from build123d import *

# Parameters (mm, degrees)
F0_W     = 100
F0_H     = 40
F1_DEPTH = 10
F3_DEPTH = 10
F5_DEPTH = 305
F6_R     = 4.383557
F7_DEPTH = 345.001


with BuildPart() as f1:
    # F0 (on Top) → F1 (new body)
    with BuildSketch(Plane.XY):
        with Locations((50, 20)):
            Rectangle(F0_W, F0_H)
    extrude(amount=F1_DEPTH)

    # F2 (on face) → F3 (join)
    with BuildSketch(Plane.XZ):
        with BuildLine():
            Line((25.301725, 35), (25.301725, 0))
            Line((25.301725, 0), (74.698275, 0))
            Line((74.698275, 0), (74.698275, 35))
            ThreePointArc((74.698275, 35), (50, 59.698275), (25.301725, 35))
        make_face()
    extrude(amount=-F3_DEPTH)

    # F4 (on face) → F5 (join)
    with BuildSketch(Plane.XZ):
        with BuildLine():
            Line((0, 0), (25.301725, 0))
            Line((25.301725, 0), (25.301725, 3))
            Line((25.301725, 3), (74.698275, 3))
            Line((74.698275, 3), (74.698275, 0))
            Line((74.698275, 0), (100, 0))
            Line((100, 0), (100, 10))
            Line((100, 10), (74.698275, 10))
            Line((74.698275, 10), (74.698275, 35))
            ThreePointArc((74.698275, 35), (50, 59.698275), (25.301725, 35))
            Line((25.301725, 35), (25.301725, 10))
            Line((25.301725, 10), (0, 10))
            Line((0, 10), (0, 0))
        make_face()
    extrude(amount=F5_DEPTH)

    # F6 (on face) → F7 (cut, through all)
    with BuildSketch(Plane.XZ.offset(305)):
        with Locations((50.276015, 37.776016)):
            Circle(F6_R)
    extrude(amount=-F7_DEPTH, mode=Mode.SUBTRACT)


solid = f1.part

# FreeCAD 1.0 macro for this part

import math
import FreeCAD as App
import Part
import Sketcher
from FreeCAD import Vector

doc = App.newDocument("Part")
body = doc.addObject("PartDesign::Body", "Body")

sketch1 = body.newObject("Sketcher::SketchObject", "Sketch")
sketch1.AttachmentSupport = (doc.getObject("XY_Plane"), [""])
sketch1.MapMode = "FlatFace"
sketch1.addGeometry(Part.LineSegment(Vector(0, 40, 0), Vector(0, 0, 0)), False)
sketch1.addGeometry(Part.LineSegment(Vector(0, 0, 0), Vector(100, 0, 0)), False)
sketch1.addGeometry(Part.LineSegment(Vector(100, 0, 0), Vector(100, 40, 0)), False)
sketch1.addGeometry(Part.LineSegment(Vector(100, 40, 0), Vector(0, 40, 0)), False)
sketch1.addConstraint(Sketcher.Constraint("Coincident", 0, 2, 1, 1))
sketch1.addConstraint(Sketcher.Constraint("Coincident", 1, 2, 2, 1))
sketch1.addConstraint(Sketcher.Constraint("Coincident", 2, 2, 3, 1))
sketch1.addConstraint(Sketcher.Constraint("Coincident", 3, 2, 0, 1))
sketch1.addConstraint(Sketcher.Constraint("Vertical", 0))
sketch1.addConstraint(Sketcher.Constraint("Horizontal", 1))
sketch1.addConstraint(Sketcher.Constraint("Vertical", 2))
sketch1.addConstraint(Sketcher.Constraint("Horizontal", 3))
sketch1.addConstraint(Sketcher.Constraint("Coincident", 0, 2, -1, 1))
sketch1.addConstraint(Sketcher.Constraint("DistanceX", 1, 1, 1, 2, 100.0))
sketch1.addConstraint(Sketcher.Constraint("DistanceY", 0, 2, 0, 1, 40.0))
pad1 = body.newObject("PartDesign::Pad", "Pad")
pad1.Profile = sketch1
pad1.Length = 10

sketch2 = body.newObject("Sketcher::SketchObject", "Sketch001")
sketch2.AttachmentSupport = (doc.getObject("XZ_Plane"), [""])
sketch2.MapMode = "FlatFace"
sketch2.addGeometry(Part.LineSegment(Vector(25, 35, 0), Vector(25, 0, 0)), False)
sketch2.addGeometry(Part.LineSegment(Vector(25, 0, 0), Vector(75, 0, 0)), False)
sketch2.addGeometry(Part.LineSegment(Vector(75, 0, 0), Vector(75, 35, 0)), False)
sketch2.addGeometry(Part.ArcOfCircle(Part.Circle(Vector(50, 35, 0), Vector(0, 0, 1), 25), math.radians(0), math.radians(180)), False)
sketch2.addConstraint(Sketcher.Constraint("Coincident", 0, 2, 1, 1))
sketch2.addConstraint(Sketcher.Constraint("Coincident", 1, 2, 2, 1))
sketch2.addConstraint(Sketcher.Constraint("Tangent", 2, 2, 3, 1))
sketch2.addConstraint(Sketcher.Constraint("Tangent", 3, 2, 0, 1))
sketch2.addConstraint(Sketcher.Constraint("Vertical", 0))
sketch2.addConstraint(Sketcher.Constraint("Horizontal", 1))
sketch2.addConstraint(Sketcher.Constraint("Vertical", 2))
sketch2.addConstraint(Sketcher.Constraint("PointOnObject", 0, 2, -1))
sketch2.addConstraint(Sketcher.Constraint("DistanceY", 0, 2, 0, 1, 35.0))
sketch2.addConstraint(Sketcher.Constraint("DistanceX", -1, 1, 3, 3, 50.0))
sketch2.addConstraint(Sketcher.Constraint("Radius", 3, 24.698275))
pad2 = body.newObject("PartDesign::Pad", "Pad001")
pad2.Profile = sketch2
pad2.Length = 10
pad2.Reversed = True

sketch3 = body.newObject("Sketcher::SketchObject", "Sketch002")
sketch3.AttachmentSupport = (doc.getObject("XZ_Plane"), [""])
sketch3.MapMode = "FlatFace"
sketch3.addGeometry(Part.LineSegment(Vector(0, 0, 0), Vector(25.3, 0, 0)), False)
sketch3.addGeometry(Part.LineSegment(Vector(25.3, 0, 0), Vector(25.3, 3, 0)), False)
sketch3.addGeometry(Part.LineSegment(Vector(25.3, 3, 0), Vector(74.7, 3, 0)), False)
sketch3.addGeometry(Part.LineSegment(Vector(74.7, 3, 0), Vector(74.7, 0, 0)), False)
sketch3.addGeometry(Part.LineSegment(Vector(74.7, 0, 0), Vector(100, 0, 0)), False)
sketch3.addGeometry(Part.LineSegment(Vector(100, 0, 0), Vector(100, 10, 0)), False)
sketch3.addGeometry(Part.LineSegment(Vector(100, 10, 0), Vector(74.7, 10, 0)), False)
sketch3.addGeometry(Part.LineSegment(Vector(74.7, 10, 0), Vector(74.7, 35, 0)), False)
sketch3.addGeometry(Part.ArcOfCircle(Part.Circle(Vector(50, 35, 0), Vector(0, 0, 1), 24.7), math.radians(0), math.radians(180)), False)
sketch3.addGeometry(Part.LineSegment(Vector(25.3, 35, 0), Vector(25.3, 10, 0)), False)
sketch3.addGeometry(Part.LineSegment(Vector(25.3, 10, 0), Vector(0, 10, 0)), False)
sketch3.addGeometry(Part.LineSegment(Vector(0, 10, 0), Vector(0, 0, 0)), False)
sketch3.addConstraint(Sketcher.Constraint("Coincident", 0, 2, 1, 1))
sketch3.addConstraint(Sketcher.Constraint("Coincident", 1, 2, 2, 1))
sketch3.addConstraint(Sketcher.Constraint("Coincident", 2, 2, 3, 1))
sketch3.addConstraint(Sketcher.Constraint("Coincident", 3, 2, 4, 1))
sketch3.addConstraint(Sketcher.Constraint("Coincident", 4, 2, 5, 1))
sketch3.addConstraint(Sketcher.Constraint("Coincident", 5, 2, 6, 1))
sketch3.addConstraint(Sketcher.Constraint("Coincident", 6, 2, 7, 1))
sketch3.addConstraint(Sketcher.Constraint("Tangent", 7, 2, 8, 1))
sketch3.addConstraint(Sketcher.Constraint("Tangent", 8, 2, 9, 1))
sketch3.addConstraint(Sketcher.Constraint("Coincident", 9, 2, 10, 1))
sketch3.addConstraint(Sketcher.Constraint("Coincident", 10, 2, 11, 1))
sketch3.addConstraint(Sketcher.Constraint("Coincident", 11, 2, 0, 1))
sketch3.addConstraint(Sketcher.Constraint("Horizontal", 0))
sketch3.addConstraint(Sketcher.Constraint("Vertical", 1))
sketch3.addConstraint(Sketcher.Constraint("Horizontal", 2))
sketch3.addConstraint(Sketcher.Constraint("Vertical", 3))
sketch3.addConstraint(Sketcher.Constraint("Horizontal", 4))
sketch3.addConstraint(Sketcher.Constraint("Vertical", 5))
sketch3.addConstraint(Sketcher.Constraint("Horizontal", 6))
sketch3.addConstraint(Sketcher.Constraint("Vertical", 7))
sketch3.addConstraint(Sketcher.Constraint("Vertical", 9))
sketch3.addConstraint(Sketcher.Constraint("Horizontal", 10))
sketch3.addConstraint(Sketcher.Constraint("Vertical", 11))
sketch3.addConstraint(Sketcher.Constraint("Coincident", 11, 2, -1, 1))
sketch3.addConstraint(Sketcher.Constraint("PointOnObject", 3, 2, -1))
sketch3.addConstraint(Sketcher.Constraint("Horizontal", 6, 2, 9, 2))
sketch3.addConstraint(Sketcher.Constraint("Vertical", 3, 2, 6, 2))
sketch3.addConstraint(Sketcher.Constraint("Vertical", 1, 2, 8, 2))
sketch3.addConstraint(Sketcher.Constraint("Equal", 0, 4))
sketch3.addConstraint(Sketcher.Constraint("DistanceY", 1, 1, 1, 2, 3.0))
sketch3.addConstraint(Sketcher.Constraint("DistanceY", 5, 1, 5, 2, 10.0))
sketch3.addConstraint(Sketcher.Constraint("DistanceY", 7, 1, 7, 2, 25.0))
sketch3.addConstraint(Sketcher.Constraint("DistanceX", -1, 1, 8, 3, 50.0))
sketch3.addConstraint(Sketcher.Constraint("Radius", 8, 24.698275))
pad3 = body.newObject("PartDesign::Pad", "Pad002")
pad3.Profile = sketch3
pad3.Length = 305

sketch4 = body.newObject("Sketcher::SketchObject", "Sketch003")
sketch4.AttachmentSupport = (doc.getObject("XZ_Plane"), [""])
sketch4.MapMode = "FlatFace"
sketch4.AttachmentOffset = App.Placement(Vector(0, 0, 305), App.Rotation())
sketch4.addGeometry(Part.Circle(Vector(50.3, 37.8, 0), Vector(0, 0, 1), 4.4), False)
sketch4.addConstraint(Sketcher.Constraint("Diameter", 0, 8.767114))
sketch4.addConstraint(Sketcher.Constraint("DistanceX", -1, 1, 0, 3, 50.276015))
sketch4.addConstraint(Sketcher.Constraint("DistanceY", -1, 1, 0, 3, 37.776016))
pocket1 = body.newObject("PartDesign::Pocket", "Pocket")
pocket1.Profile = sketch4
pocket1.Type = "ThroughAll"

doc.recompute()
